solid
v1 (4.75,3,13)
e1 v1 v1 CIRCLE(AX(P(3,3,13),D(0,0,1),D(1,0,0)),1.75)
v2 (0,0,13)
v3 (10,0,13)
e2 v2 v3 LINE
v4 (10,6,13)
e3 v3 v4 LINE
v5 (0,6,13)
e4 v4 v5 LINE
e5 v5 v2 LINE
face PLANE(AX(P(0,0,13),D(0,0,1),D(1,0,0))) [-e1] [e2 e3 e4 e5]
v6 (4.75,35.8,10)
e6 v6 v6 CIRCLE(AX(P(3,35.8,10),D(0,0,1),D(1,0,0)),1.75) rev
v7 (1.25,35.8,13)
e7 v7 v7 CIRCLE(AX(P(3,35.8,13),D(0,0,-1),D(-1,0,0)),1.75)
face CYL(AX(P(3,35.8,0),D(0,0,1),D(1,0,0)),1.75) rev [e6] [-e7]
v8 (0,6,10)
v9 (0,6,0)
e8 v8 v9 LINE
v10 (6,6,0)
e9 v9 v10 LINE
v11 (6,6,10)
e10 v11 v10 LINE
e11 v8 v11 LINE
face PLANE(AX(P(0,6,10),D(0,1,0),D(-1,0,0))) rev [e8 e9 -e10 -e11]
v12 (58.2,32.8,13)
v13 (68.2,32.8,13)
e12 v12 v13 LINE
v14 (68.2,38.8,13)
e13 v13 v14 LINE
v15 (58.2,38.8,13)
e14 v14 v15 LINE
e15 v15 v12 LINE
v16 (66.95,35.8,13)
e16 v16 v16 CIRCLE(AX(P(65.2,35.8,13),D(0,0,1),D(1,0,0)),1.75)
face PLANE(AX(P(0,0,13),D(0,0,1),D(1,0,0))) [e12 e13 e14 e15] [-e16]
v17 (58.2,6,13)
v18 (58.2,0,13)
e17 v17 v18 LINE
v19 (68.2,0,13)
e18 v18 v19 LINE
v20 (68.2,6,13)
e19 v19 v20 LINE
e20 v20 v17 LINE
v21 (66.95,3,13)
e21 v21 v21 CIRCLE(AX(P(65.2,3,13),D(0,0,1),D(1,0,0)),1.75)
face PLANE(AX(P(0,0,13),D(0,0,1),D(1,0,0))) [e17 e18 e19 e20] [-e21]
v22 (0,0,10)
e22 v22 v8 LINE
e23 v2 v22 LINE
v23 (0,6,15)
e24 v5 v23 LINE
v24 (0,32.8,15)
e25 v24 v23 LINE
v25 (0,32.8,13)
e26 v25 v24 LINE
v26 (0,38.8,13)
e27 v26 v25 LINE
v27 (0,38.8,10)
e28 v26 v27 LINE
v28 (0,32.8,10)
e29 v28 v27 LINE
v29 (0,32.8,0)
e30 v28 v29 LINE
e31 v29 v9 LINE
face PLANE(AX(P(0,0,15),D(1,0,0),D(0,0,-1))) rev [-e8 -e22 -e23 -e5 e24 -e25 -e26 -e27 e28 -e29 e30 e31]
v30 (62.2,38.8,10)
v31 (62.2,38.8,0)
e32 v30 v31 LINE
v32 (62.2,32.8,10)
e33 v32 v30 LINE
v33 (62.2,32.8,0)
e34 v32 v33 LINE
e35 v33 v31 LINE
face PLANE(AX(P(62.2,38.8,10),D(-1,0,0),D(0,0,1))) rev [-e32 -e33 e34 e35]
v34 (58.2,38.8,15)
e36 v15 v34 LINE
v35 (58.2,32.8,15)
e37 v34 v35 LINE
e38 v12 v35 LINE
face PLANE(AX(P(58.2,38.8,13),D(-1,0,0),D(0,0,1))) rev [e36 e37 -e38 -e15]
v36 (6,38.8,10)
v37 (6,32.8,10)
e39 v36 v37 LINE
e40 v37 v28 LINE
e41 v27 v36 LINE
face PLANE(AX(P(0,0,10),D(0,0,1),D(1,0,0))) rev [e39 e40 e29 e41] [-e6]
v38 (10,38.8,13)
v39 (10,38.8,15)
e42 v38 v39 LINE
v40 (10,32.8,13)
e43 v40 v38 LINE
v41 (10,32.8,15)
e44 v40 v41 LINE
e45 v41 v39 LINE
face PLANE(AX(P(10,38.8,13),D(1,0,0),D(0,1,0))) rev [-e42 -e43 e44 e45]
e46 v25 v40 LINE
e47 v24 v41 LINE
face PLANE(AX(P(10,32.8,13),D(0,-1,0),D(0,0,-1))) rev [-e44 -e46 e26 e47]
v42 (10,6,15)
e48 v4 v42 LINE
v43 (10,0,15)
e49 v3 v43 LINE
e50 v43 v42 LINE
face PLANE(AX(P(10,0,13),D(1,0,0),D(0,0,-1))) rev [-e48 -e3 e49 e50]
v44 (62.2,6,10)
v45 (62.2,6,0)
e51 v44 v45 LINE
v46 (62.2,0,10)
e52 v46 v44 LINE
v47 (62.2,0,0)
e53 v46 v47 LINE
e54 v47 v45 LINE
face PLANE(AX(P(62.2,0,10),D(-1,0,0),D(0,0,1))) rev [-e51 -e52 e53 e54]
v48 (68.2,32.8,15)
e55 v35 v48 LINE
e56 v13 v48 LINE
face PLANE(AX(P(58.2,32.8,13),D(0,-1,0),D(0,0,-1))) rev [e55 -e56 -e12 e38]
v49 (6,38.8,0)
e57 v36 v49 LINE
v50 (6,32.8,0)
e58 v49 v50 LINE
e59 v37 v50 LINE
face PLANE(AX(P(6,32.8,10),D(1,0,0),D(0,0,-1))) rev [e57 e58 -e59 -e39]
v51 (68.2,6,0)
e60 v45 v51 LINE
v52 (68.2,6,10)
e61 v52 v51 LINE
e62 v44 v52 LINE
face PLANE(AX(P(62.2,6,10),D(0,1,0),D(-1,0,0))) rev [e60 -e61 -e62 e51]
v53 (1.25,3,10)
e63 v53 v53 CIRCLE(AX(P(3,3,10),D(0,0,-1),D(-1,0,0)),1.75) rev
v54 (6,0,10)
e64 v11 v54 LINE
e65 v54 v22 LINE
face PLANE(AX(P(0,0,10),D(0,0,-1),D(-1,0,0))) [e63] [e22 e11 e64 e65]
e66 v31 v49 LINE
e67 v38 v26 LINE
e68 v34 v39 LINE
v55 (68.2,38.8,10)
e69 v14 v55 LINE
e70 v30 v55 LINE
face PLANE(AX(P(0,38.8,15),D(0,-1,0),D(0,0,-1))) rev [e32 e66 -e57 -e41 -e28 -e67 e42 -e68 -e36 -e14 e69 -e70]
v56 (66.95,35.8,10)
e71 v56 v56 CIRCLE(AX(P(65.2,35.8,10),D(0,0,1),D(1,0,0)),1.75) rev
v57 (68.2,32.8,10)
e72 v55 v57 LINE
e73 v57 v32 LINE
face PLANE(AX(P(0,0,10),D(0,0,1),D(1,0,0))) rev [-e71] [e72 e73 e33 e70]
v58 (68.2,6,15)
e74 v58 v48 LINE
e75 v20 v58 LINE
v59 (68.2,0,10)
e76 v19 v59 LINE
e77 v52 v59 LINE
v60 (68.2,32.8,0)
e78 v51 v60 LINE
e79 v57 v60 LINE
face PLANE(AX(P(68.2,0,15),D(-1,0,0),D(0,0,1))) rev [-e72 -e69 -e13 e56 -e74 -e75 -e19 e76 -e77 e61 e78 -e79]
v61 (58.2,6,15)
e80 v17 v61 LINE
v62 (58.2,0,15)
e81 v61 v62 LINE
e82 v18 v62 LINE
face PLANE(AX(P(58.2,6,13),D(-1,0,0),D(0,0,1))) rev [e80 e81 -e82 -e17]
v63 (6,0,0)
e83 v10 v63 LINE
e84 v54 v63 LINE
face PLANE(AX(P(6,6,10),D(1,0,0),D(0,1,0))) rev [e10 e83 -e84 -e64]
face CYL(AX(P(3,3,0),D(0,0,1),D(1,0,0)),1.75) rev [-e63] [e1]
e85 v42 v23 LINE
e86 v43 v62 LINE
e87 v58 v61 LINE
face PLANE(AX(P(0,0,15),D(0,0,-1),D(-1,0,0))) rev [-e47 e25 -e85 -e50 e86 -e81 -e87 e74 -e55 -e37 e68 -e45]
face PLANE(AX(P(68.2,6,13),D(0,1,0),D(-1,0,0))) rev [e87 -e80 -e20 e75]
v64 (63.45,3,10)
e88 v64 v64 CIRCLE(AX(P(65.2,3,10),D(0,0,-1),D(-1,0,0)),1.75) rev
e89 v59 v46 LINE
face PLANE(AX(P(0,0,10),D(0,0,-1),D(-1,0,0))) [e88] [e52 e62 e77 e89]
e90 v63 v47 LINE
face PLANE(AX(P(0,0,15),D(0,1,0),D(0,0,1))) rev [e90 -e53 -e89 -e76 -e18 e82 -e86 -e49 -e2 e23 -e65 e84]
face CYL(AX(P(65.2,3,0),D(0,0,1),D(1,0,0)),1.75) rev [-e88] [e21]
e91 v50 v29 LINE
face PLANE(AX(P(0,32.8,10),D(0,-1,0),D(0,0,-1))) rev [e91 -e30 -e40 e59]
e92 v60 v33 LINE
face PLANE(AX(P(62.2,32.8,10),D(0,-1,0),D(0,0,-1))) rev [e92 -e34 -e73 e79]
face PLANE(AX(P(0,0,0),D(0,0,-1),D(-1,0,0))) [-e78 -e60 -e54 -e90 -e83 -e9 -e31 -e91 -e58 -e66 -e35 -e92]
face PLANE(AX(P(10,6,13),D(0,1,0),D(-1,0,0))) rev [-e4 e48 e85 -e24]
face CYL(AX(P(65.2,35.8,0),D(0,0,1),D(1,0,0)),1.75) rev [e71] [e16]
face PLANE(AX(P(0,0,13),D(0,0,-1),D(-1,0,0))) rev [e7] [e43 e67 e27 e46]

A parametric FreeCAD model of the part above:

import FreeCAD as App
import Part
import Sketcher

V = App.Vector
Q = App.Units.Quantity

doc = App.newDocument("Part")
body = doc.addObject("PartDesign::Body", "Body")

sketch1 = body.newObject("Sketcher::SketchObject", "Sketch")
sketch1.AttachmentSupport = (doc.getObject("XY_Plane"), [""])
sketch1.MapMode = "FlatFace"
sketch1.addGeometry([
    Part.LineSegment(V(0, 38.8, 0), V(0, 0, 0)),
    Part.LineSegment(V(0, 0, 0), V(68.2, 0, 0)),
    Part.LineSegment(V(68.2, 0, 0), V(68.2, 38.8, 0)),
    Part.LineSegment(V(68.2, 38.8, 0), V(0, 38.8, 0)),
], False)
sketch1.addConstraint([
    Sketcher.Constraint("Coincident", 0, 2, 1, 1),
    Sketcher.Constraint("Coincident", 1, 2, 2, 1),
    Sketcher.Constraint("Coincident", 2, 2, 3, 1),
    Sketcher.Constraint("Coincident", 3, 2, 0, 1),
    Sketcher.Constraint("Vertical", 0),
    Sketcher.Constraint("Horizontal", 1),
    Sketcher.Constraint("Vertical", 2),
    Sketcher.Constraint("Horizontal", 3),
    Sketcher.Constraint("Coincident", 0, 2, -1, 1),
    Sketcher.Constraint("DistanceX", 1, 1, 1, 2, Q("68.2 mm")),
    Sketcher.Constraint("DistanceY", 0, 2, 0, 1, Q("38.8 mm")),
])
pad1 = body.newObject("PartDesign::Pad", "Pad")
pad1.Profile = sketch1
pad1.Length = 15

sketch2 = body.newObject("Sketcher::SketchObject", "Sketch001")
sketch2.AttachmentSupport = (doc.getObject("XY_Plane"), [""])
sketch2.MapMode = "FlatFace"
sketch2.AttachmentOffset = App.Placement(V(0, 0, 15), App.Rotation())
sketch2.addGeometry([
    Part.LineSegment(V(0, 38.8, 0), V(0, 32.8, 0)),
    Part.LineSegment(V(0, 32.8, 0), V(10, 32.8, 0)),
    Part.LineSegment(V(10, 32.8, 0), V(10, 38.8, 0)),
    Part.LineSegment(V(10, 38.8, 0), V(0, 38.8, 0)),
    Part.LineSegment(V(0, 6, 0), V(0, 0, 0)),
    Part.LineSegment(V(0, 0, 0), V(10, 0, 0)),
    Part.LineSegment(V(10, 0, 0), V(10, 6, 0)),
    Part.LineSegment(V(10, 6, 0), V(0, 6, 0)),
    Part.LineSegment(V(58.2, 6, 0), V(58.2, 0, 0)),
    Part.LineSegment(V(58.2, 0, 0), V(68.2, 0, 0)),
    Part.LineSegment(V(68.2, 0, 0), V(68.2, 6, 0)),
    Part.LineSegment(V(68.2, 6, 0), V(58.2, 6, 0)),
    Part.LineSegment(V(58.2, 38.8, 0), V(58.2, 32.8, 0)),
    Part.LineSegment(V(58.2, 32.8, 0), V(68.2, 32.8, 0)),
    Part.LineSegment(V(68.2, 32.8, 0), V(68.2, 38.8, 0)),
    Part.LineSegment(V(68.2, 38.8, 0), V(58.2, 38.8, 0)),
], False)
sketch2.addConstraint([
    Sketcher.Constraint("Coincident", 0, 2, 1, 1),
    Sketcher.Constraint("Coincident", 1, 2, 2, 1),
    Sketcher.Constraint("Coincident", 2, 2, 3, 1),
    Sketcher.Constraint("Coincident", 3, 2, 0, 1),
    Sketcher.Constraint("Coincident", 4, 2, 5, 1),
    Sketcher.Constraint("Coincident", 5, 2, 6, 1),
    Sketcher.Constraint("Coincident", 6, 2, 7, 1),
    Sketcher.Constraint("Coincident", 7, 2, 4, 1),
    Sketcher.Constraint("Coincident", 8, 2, 9, 1),
    Sketcher.Constraint("Coincident", 9, 2, 10, 1),
    Sketcher.Constraint("Coincident", 10, 2, 11, 1),
    Sketcher.Constraint("Coincident", 11, 2, 8, 1),
    Sketcher.Constraint("Coincident", 12, 2, 13, 1),
    Sketcher.Constraint("Coincident", 13, 2, 14, 1),
    Sketcher.Constraint("Coincident", 14, 2, 15, 1),
    Sketcher.Constraint("Coincident", 15, 2, 12, 1),
    Sketcher.Constraint("Vertical", 0),
    Sketcher.Constraint("Horizontal", 1),
    Sketcher.Constraint("Vertical", 2),
    Sketcher.Constraint("Horizontal", 3),
    Sketcher.Constraint("Vertical", 4),
    Sketcher.Constraint("Horizontal", 5),
    Sketcher.Constraint("Vertical", 6),
    Sketcher.Constraint("Horizontal", 7),
    Sketcher.Constraint("Vertical", 8),
    Sketcher.Constraint("Horizontal", 9),
    Sketcher.Constraint("Vertical", 10),
    Sketcher.Constraint("Horizontal", 11),
    Sketcher.Constraint("Vertical", 12),
    Sketcher.Constraint("Horizontal", 13),
    Sketcher.Constraint("Vertical", 14),
    Sketcher.Constraint("Horizontal", 15),
    Sketcher.Constraint("Coincident", 4, 2, -1, 1),
    Sketcher.Constraint("PointOnObject", 0, 2, -2),
    Sketcher.Constraint("PointOnObject", 8, 2, -1),
    Sketcher.Constraint("Horizontal", 7, 2, 10, 2),
    Sketcher.Constraint("Horizontal", 1, 2, 12, 2),
    Sketcher.Constraint("Horizontal", 3, 2, 14, 2),
    Sketcher.Constraint("Vertical", 2, 2, 5, 2),
    Sketcher.Constraint("Vertical", 11, 2, 12, 2),
    Sketcher.Constraint("Vertical", 10, 2, 13, 2),
    Sketcher.Constraint("Equal", 7, 9),
    Sketcher.Constraint("Equal", 2, 4),
    Sketcher.Constraint("DistanceX", 1, 1, 1, 2, Q("10 mm")),
    Sketcher.Constraint("DistanceY", 0, 2, 0, 1, Q("6 mm")),
    Sketcher.Constraint("DistanceY", -1, 1, 0, 2, Q("32.8 mm")),
    Sketcher.Constraint("DistanceX", -1, 1, 8, 2, Q("58.2 mm")),
])
pocket1 = body.newObject("PartDesign::Pocket", "Pocket")
pocket1.Profile = sketch2
pocket1.Length = 2

sketch3 = body.newObject("Sketcher::SketchObject", "Sketch002")
sketch3.AttachmentSupport = (doc.getObject("XY_Plane"), [""])
sketch3.MapMode = "FlatFace"
sketch3.AttachmentOffset = App.Placement(V(0, 0, 15), App.Rotation())
sketch3.addGeometry([
    Part.Circle(V(3, 35.8, 0), V(0, 0, 1), 1.75),
    Part.Circle(V(3, 3, 0), V(0, 0, 1), 1.75),
    Part.Circle(V(65.2, 35.8, 0), V(0, 0, 1), 1.75),
    Part.Circle(V(65.2, 3, 0), V(0, 0, 1), 1.75),
], False)
sketch3.addConstraint([
    Sketcher.Constraint("Equal", 0, 1),
    Sketcher.Constraint("Equal", 1, 2),
    Sketcher.Constraint("Equal", 2, 3),
    Sketcher.Constraint("Horizontal", 0, 3, 2, 3),
    Sketcher.Constraint("Horizontal", 1, 3, 3, 3),
    Sketcher.Constraint("Vertical", 0, 3, 1, 3),
    Sketcher.Constraint("Vertical", 2, 3, 3, 3),
    Sketcher.Constraint("Diameter", 0, Q("3.5 mm")),
    Sketcher.Constraint("DistanceX", -1, 1, 0, 3, Q("3 mm")),
    Sketcher.Constraint("DistanceY", -1, 1, 1, 3, Q("3 mm")),
    Sketcher.Constraint("DistanceY", -1, 1, 0, 3, Q("35.8 mm")),
    Sketcher.Constraint("DistanceX", -1, 1, 2, 3, Q("65.2 mm")),
])
pocket2 = body.newObject("PartDesign::Pocket", "Pocket001")
pocket2.Profile = sketch3
pocket2.Type = "ThroughAll"

sketch4 = body.newObject("Sketcher::SketchObject", "Sketch003")
sketch4.AttachmentSupport = (doc.getObject("XY_Plane"), [""])
sketch4.MapMode = "FlatFace"
sketch4.addGeometry([
    Part.LineSegment(V(68.2, 38.8, 0), V(68.2, 32.8, 0)),
    Part.LineSegment(V(68.2, 32.8, 0), V(62.2, 32.8, 0)),
    Part.LineSegment(V(62.2, 32.8, 0), V(62.2, 38.8, 0)),
    Part.LineSegment(V(62.2, 38.8, 0), V(68.2, 38.8, 0)),
    Part.LineSegment(V(6, 38.8, 0), V(6, 32.8, 0)),
    Part.LineSegment(V(6, 32.8, 0), V(0, 32.8, 0)),
    Part.LineSegment(V(0, 32.8, 0), V(0, 38.8, 0)),
    Part.LineSegment(V(0, 38.8, 0), V(6, 38.8, 0)),
    Part.LineSegment(V(6, 6, 0), V(6, 0, 0)),
    Part.LineSegment(V(6, 0, 0), V(0, 0, 0)),
    Part.LineSegment(V(0, 0, 0), V(0, 6, 0)),
    Part.LineSegment(V(0, 6, 0), V(6, 6, 0)),
    Part.LineSegment(V(68.2, 6, 0), V(68.2, 0, 0)),
    Part.LineSegment(V(68.2, 0, 0), V(62.2, 0, 0)),
    Part.LineSegment(V(62.2, 0, 0), V(62.2, 6, 0)),
    Part.LineSegment(V(62.2, 6, 0), V(68.2, 6, 0)),
], False)
sketch4.addConstraint([
    Sketcher.Constraint("Coincident", 0, 2, 1, 1),
    Sketcher.Constraint("Coincident", 1, 2, 2, 1),
    Sketcher.Constraint("Coincident", 2, 2, 3, 1),
    Sketcher.Constraint("Coincident", 3, 2, 0, 1),
    Sketcher.Constraint("Coincident", 4, 2, 5, 1),
    Sketcher.Constraint("Coincident", 5, 2, 6, 1),
    Sketcher.Constraint("Coincident", 6, 2, 7, 1),
    Sketcher.Constraint("Coincident", 7, 2, 4, 1),
    Sketcher.Constraint("Coincident", 8, 2, 9, 1),
    Sketcher.Constraint("Coincident", 9, 2, 10, 1),
    Sketcher.Constraint("Coincident", 10, 2, 11, 1),
    Sketcher.Constraint("Coincident", 11, 2, 8, 1),
    Sketcher.Constraint("Coincident", 12, 2, 13, 1),
    Sketcher.Constraint("Coincident", 13, 2, 14, 1),
    Sketcher.Constraint("Coincident", 14, 2, 15, 1),
    Sketcher.Constraint("Coincident", 15, 2, 12, 1),
    Sketcher.Constraint("Vertical", 0),
    Sketcher.Constraint("Horizontal", 1),
    Sketcher.Constraint("Vertical", 2),
    Sketcher.Constraint("Horizontal", 3),
    Sketcher.Constraint("Vertical", 4),
    Sketcher.Constraint("Horizontal", 5),
    Sketcher.Constraint("Vertical", 6),
    Sketcher.Constraint("Horizontal", 7),
    Sketcher.Constraint("Vertical", 8),
    Sketcher.Constraint("Horizontal", 9),
    Sketcher.Constraint("Vertical", 10),
    Sketcher.Constraint("Horizontal", 11),
    Sketcher.Constraint("Vertical", 12),
    Sketcher.Constraint("Horizontal", 13),
    Sketcher.Constraint("Vertical", 14),
    Sketcher.Constraint("Horizontal", 15),
    Sketcher.Constraint("Coincident", 9, 2, -1, 1),
    Sketcher.Constraint("PointOnObject", 5, 2, -2),
    Sketcher.Constraint("PointOnObject", 12, 2, -1),
    Sketcher.Constraint("Horizontal", 1, 2, 4, 2),
    Sketcher.Constraint("Horizontal", 3, 2, 6, 2),
    Sketcher.Constraint("Horizontal", 11, 2, 14, 2),
    Sketcher.Constraint("Vertical", 7, 2, 8, 2),
    Sketcher.Constraint("Vertical", 3, 2, 12, 2),
    Sketcher.Constraint("Vertical", 2, 2, 13, 2),
    Sketcher.Constraint("Equal", 3, 5),
    Sketcher.Constraint("Equal", 15, 0),
    Sketcher.Constraint("Equal", 6, 8),
    Sketcher.Constraint("DistanceX", 1, 2, 1, 1, Q("6 mm")),
    Sketcher.Constraint("DistanceX", -1, 1, 0, 2, Q("68.2 mm")),
    Sketcher.Constraint("DistanceY", -1, 1, 0, 2, Q("32.8 mm")),
])
pocket3 = body.newObject("PartDesign::Pocket", "Pocket002")
pocket3.Profile = sketch4
pocket3.Length = 10
pocket3.Reversed = True

doc.recompute()
